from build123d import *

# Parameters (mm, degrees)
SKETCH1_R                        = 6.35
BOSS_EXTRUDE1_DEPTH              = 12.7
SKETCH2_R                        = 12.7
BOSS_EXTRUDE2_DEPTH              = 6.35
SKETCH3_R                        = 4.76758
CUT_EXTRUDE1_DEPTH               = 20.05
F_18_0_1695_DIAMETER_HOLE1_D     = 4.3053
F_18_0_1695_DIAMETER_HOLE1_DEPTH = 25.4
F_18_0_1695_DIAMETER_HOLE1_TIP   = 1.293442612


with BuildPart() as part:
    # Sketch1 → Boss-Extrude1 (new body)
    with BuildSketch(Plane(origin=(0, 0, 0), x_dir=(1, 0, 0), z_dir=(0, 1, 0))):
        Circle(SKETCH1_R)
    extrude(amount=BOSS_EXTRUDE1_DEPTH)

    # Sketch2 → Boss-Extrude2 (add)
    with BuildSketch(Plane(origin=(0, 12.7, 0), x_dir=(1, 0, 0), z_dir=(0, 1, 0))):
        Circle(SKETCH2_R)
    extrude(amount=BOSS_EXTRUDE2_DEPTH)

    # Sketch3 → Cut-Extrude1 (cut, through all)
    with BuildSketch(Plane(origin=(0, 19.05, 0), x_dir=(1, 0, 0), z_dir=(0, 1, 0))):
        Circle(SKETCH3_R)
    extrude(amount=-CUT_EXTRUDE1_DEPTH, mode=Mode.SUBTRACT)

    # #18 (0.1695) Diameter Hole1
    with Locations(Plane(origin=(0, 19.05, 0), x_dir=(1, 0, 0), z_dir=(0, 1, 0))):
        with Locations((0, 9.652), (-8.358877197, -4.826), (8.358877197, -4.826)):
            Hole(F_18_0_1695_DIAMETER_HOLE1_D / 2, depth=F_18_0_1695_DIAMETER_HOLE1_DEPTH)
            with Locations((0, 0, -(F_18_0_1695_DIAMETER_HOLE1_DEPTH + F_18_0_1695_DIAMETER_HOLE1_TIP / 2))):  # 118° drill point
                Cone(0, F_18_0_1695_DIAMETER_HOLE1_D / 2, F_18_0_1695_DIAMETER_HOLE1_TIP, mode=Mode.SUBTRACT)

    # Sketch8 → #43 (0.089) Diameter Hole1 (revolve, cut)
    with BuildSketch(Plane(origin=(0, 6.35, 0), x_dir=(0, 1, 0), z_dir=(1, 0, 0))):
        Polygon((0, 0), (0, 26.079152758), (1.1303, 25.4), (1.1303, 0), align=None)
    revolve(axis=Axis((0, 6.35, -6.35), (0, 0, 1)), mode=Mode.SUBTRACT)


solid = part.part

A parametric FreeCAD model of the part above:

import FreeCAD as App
import Part
import Sketcher
from FreeCAD import Vector
Q = App.Units.Quantity

doc = App.newDocument("Part")
params = doc.addObject("Spreadsheet::Sheet", "Params")
for row, (alias, value) in enumerate([
    ("sketch1_diameter", "0.5 in"),
    ("pad1_length", "0.5 in"),
    ("sketch2_diameter", "1 in"),
    ("pad2_length", "0.25 in"),
    ("hole_diameter", "0.1695 in"),
    ("hole_depth", "1 in"),
    ("sketch5_height", "1 in"),
    ("groove_angle", "360 deg"),
], start=1):
    params.set(f"A{row}", alias)
    params.set(f"B{row}", "=" + value)
    params.setAlias(f"B{row}", alias)

body = doc.addObject("PartDesign::Body", "Body")

sketch1 = body.newObject("Sketcher::SketchObject", "Sketch")
sketch1.AttachmentSupport = (doc.getObject("XZ_Plane"), [""])
sketch1.MapMode = "FlatFace"
sketch1.addGeometry(Part.Circle(Vector(0, 0, 0), Vector(0, 0, 1), 6.35), False)
sketch1.addConstraint([
    Sketcher.Constraint("Coincident", 0, 3, -1, 1),
    Sketcher.Constraint("Diameter", 0, Q("0.5 in")),
])
sketch1.setExpression("Constraints[1]", "Params.sketch1_diameter")
pad1 = body.newObject("PartDesign::Pad", "Pad")
pad1.Profile = sketch1
pad1.setExpression("Length", "Params.pad1_length")
pad1.Reversed = True

sketch2 = body.newObject("Sketcher::SketchObject", "Sketch001")
sketch2.AttachmentSupport = (doc.getObject("XZ_Plane"), [""])
sketch2.MapMode = "FlatFace"
sketch2.AttachmentOffset = App.Placement(Vector(0, 0, -0.5 * 25.4), App.Rotation())
sketch2.addGeometry(Part.Circle(Vector(0, 0, 0), Vector(0, 0, 1), 12.7), False)
sketch2.addConstraint([
    Sketcher.Constraint("Coincident", 0, 3, -1, 1),
    Sketcher.Constraint("Diameter", 0, Q("1 in")),
])
sketch2.setExpression("Constraints[1]", "Params.sketch2_diameter")
pad2 = body.newObject("PartDesign::Pad", "Pad001")
pad2.Profile = sketch2
pad2.setExpression("Length", "Params.pad2_length")
pad2.Reversed = True

sketch3 = body.newObject("Sketcher::SketchObject", "Sketch002")
sketch3.AttachmentSupport = (doc.getObject("XZ_Plane"), [""])
sketch3.MapMode = "FlatFace"
sketch3.AttachmentOffset = App.Placement(Vector(0, 0, -0.75 * 25.4), App.Rotation())
sketch3.addGeometry(Part.Circle(Vector(0, 0, 0), Vector(0, 0, 1), 4.76758), False)
sketch3.addConstraint([
    Sketcher.Constraint("Coincident", 0, 3, -1, 1),
    Sketcher.Constraint("Diameter", 0, Q("0.3754 in")),
])
pocket1 = body.newObject("PartDesign::Pocket", "Pocket")
pocket1.Profile = sketch3
pocket1.Type = "ThroughAll"
pocket1.Reversed = True

sketch4 = body.newObject("Sketcher::SketchObject", "Sketch003")
sketch4.AttachmentSupport = (doc.getObject("XZ_Plane"), [""])
sketch4.MapMode = "FlatFace"
sketch4.AttachmentOffset = App.Placement(Vector(0, 0, -0.75 * 25.4), App.Rotation())
sketch4.addGeometry([
    Part.Circle(Vector(0, -9.652, 0), Vector(0, 0, 1), 2.15265),
    Part.Circle(Vector(-8.358877, 4.826, 0), Vector(0, 0, 1), 2.15265),
    Part.Circle(Vector(8.358877, 4.826, 0), Vector(0, 0, 1), 2.15265),
], False)
sketch4.addConstraint([
    Sketcher.Constraint("Equal", 0, 1),
    Sketcher.Constraint("Equal", 1, 2),
    Sketcher.Constraint("Symmetric", 1, 3, 2, 3, -2),
    Sketcher.Constraint("PointOnObject", 0, 3, -2),
    Sketcher.Constraint("Diameter", 0, Q("0.1695 in")),
    Sketcher.Constraint("DistanceY", 0, 3, -1, 1, Q("0.38 in")),
    Sketcher.Constraint("DistanceY", -1, 1, 1, 3, Q("0.19 in")),
    Sketcher.Constraint("DistanceX", 1, 3, -1, 1, Q("8.358877 mm")),
])
doc.recompute()
hole = body.newObject("PartDesign::Hole", "Hole")
hole.Profile = sketch4
hole.ThreadType = "None"
hole.setExpression("Diameter", "Params.hole_diameter")
hole.DepthType = "Dimension"
hole.setExpression("Depth", "Params.hole_depth")
hole.DrillPoint = "Angled"
hole.DrillPointAngle = 118
hole.Reversed = True

sketch5 = body.newObject("Sketcher::SketchObject", "Sketch004")
sketch5.AttachmentSupport = (doc.getObject("YZ_Plane"), [""])
sketch5.MapMode = "FlatFace"
sketch5.addGeometry([
    Part.LineSegment(Vector(6.35, 26.079153, 0), Vector(6.35, 0, 0)),
    Part.LineSegment(Vector(6.35, 0, 0), Vector(7.4803, 0, 0)),
    Part.LineSegment(Vector(7.4803, 0, 0), Vector(7.4803, 25.4, 0)),
    Part.LineSegment(Vector(7.4803, 25.4, 0), Vector(6.35, 26.079153, 0)),
], False)
sketch5.addGeometry(Part.LineSegment(Vector(6.35, 0, 0), Vector(6.35, 26.079153, 0)), True)
sketch5.addConstraint([
    Sketcher.Constraint("Coincident", 0, 2, 1, 1),
    Sketcher.Constraint("Coincident", 1, 2, 2, 1),
    Sketcher.Constraint("Coincident", 2, 2, 3, 1),
    Sketcher.Constraint("Coincident", 3, 2, 0, 1),
    Sketcher.Constraint("Vertical", 0),
    Sketcher.Constraint("Horizontal", 1),
    Sketcher.Constraint("Vertical", 2),
    Sketcher.Constraint("Vertical", 4),
    Sketcher.Constraint("Coincident", 4, 1, 0, 2),
    Sketcher.Constraint("PointOnObject", 0, 2, -1),
    Sketcher.Constraint("Equal", 0, 4),
    Sketcher.Constraint("DistanceY", 2, 1, 2, 2, Q("1 in")),
    Sketcher.Constraint("Angle", 3, Q("149 deg")),
    Sketcher.Constraint("DistanceX", -1, 1, 0, 2, Q("0.25 in")),
    Sketcher.Constraint("DistanceX", 1, 1, 1, 2, Q("0.0445 in")),
])
sketch5.setExpression("Constraints[11]", "Params.sketch5_height")
groove = body.newObject("PartDesign::Groove", "Groove")
groove.Profile = sketch5
groove.ReferenceAxis = (sketch5, ["Axis0"])
groove.setExpression("Angle", "Params.groove_angle")

doc.recompute()
